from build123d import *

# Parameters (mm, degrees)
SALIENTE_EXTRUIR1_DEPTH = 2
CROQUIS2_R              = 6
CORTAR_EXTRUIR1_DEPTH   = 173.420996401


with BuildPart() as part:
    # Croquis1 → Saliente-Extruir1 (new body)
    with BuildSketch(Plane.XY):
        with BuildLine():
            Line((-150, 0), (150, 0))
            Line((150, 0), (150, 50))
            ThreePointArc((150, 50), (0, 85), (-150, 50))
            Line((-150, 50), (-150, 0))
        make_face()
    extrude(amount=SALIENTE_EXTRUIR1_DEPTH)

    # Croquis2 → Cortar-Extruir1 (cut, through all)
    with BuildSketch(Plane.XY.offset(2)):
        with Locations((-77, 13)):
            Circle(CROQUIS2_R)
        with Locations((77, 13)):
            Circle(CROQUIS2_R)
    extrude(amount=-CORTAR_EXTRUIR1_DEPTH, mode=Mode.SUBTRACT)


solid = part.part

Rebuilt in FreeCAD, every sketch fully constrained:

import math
import FreeCAD as App
import Part
import Sketcher
from FreeCAD import Vector

doc = App.newDocument("Part")
body = doc.addObject("PartDesign::Body", "Body")

sketch1 = body.newObject("Sketcher::SketchObject", "Sketch")
sketch1.AttachmentSupport = (doc.getObject("XY_Plane"), [""])
sketch1.MapMode = "FlatFace"
sketch1.addGeometry([
    Part.LineSegment(Vector(-150, 0, 0), Vector(150, 0, 0)),
    Part.LineSegment(Vector(150, 0, 0), Vector(150, 50, 0)),
    Part.ArcOfCircle(Part.Circle(Vector(0, -254, 0), Vector(0, 0, 1), 339), math.radians(64), math.radians(116)),
    Part.LineSegment(Vector(-150, 50, 0), Vector(-150, 0, 0)),
], False)
sketch1.addConstraint([
    Sketcher.Constraint("Coincident", 0, 2, 1, 1),
    Sketcher.Constraint("Coincident", 1, 2, 2, 1),
    Sketcher.Constraint("Coincident", 2, 2, 3, 1),
    Sketcher.Constraint("Coincident", 3, 2, 0, 1),
    Sketcher.Constraint("Horizontal", 0),
    Sketcher.Constraint("Vertical", 1),
    Sketcher.Constraint("Vertical", 3),
    Sketcher.Constraint("Symmetric", 0, 2, 3, 2, -1, 1),
    Sketcher.Constraint("PointOnObject", 2, 3, -2),
    Sketcher.Constraint("DistanceX", 0, 1, 0, 2, 300.0),
    Sketcher.Constraint("DistanceY", 1, 1, 1, 2, 50.0),
    Sketcher.Constraint("Radius", 2, 338.928571),
])
pad1 = body.newObject("PartDesign::Pad", "Pad")
pad1.Profile = sketch1
pad1.Length = 2

sketch2 = body.newObject("Sketcher::SketchObject", "Sketch001")
sketch2.AttachmentSupport = (doc.getObject("XY_Plane"), [""])
sketch2.MapMode = "FlatFace"
sketch2.AttachmentOffset = App.Placement(Vector(0, 0, 2), App.Rotation())
sketch2.addGeometry([
    Part.Circle(Vector(-77, 13, 0), Vector(0, 0, 1), 6),
    Part.Circle(Vector(77, 13, 0), Vector(0, 0, 1), 6),
], False)
sketch2.addConstraint([
    Sketcher.Constraint("Equal", 0, 1),
    Sketcher.Constraint("Symmetric", 0, 3, 1, 3, -2),
    Sketcher.Constraint("Diameter", 0, 12.0),
    Sketcher.Constraint("DistanceX", 0, 3, -1, 1, 77.0),
    Sketcher.Constraint("DistanceY", -1, 1, 0, 3, 13.0),
])
pocket1 = body.newObject("PartDesign::Pocket", "Pocket")
pocket1.Profile = sketch2
pocket1.Type = "ThroughAll"

doc.recompute()
